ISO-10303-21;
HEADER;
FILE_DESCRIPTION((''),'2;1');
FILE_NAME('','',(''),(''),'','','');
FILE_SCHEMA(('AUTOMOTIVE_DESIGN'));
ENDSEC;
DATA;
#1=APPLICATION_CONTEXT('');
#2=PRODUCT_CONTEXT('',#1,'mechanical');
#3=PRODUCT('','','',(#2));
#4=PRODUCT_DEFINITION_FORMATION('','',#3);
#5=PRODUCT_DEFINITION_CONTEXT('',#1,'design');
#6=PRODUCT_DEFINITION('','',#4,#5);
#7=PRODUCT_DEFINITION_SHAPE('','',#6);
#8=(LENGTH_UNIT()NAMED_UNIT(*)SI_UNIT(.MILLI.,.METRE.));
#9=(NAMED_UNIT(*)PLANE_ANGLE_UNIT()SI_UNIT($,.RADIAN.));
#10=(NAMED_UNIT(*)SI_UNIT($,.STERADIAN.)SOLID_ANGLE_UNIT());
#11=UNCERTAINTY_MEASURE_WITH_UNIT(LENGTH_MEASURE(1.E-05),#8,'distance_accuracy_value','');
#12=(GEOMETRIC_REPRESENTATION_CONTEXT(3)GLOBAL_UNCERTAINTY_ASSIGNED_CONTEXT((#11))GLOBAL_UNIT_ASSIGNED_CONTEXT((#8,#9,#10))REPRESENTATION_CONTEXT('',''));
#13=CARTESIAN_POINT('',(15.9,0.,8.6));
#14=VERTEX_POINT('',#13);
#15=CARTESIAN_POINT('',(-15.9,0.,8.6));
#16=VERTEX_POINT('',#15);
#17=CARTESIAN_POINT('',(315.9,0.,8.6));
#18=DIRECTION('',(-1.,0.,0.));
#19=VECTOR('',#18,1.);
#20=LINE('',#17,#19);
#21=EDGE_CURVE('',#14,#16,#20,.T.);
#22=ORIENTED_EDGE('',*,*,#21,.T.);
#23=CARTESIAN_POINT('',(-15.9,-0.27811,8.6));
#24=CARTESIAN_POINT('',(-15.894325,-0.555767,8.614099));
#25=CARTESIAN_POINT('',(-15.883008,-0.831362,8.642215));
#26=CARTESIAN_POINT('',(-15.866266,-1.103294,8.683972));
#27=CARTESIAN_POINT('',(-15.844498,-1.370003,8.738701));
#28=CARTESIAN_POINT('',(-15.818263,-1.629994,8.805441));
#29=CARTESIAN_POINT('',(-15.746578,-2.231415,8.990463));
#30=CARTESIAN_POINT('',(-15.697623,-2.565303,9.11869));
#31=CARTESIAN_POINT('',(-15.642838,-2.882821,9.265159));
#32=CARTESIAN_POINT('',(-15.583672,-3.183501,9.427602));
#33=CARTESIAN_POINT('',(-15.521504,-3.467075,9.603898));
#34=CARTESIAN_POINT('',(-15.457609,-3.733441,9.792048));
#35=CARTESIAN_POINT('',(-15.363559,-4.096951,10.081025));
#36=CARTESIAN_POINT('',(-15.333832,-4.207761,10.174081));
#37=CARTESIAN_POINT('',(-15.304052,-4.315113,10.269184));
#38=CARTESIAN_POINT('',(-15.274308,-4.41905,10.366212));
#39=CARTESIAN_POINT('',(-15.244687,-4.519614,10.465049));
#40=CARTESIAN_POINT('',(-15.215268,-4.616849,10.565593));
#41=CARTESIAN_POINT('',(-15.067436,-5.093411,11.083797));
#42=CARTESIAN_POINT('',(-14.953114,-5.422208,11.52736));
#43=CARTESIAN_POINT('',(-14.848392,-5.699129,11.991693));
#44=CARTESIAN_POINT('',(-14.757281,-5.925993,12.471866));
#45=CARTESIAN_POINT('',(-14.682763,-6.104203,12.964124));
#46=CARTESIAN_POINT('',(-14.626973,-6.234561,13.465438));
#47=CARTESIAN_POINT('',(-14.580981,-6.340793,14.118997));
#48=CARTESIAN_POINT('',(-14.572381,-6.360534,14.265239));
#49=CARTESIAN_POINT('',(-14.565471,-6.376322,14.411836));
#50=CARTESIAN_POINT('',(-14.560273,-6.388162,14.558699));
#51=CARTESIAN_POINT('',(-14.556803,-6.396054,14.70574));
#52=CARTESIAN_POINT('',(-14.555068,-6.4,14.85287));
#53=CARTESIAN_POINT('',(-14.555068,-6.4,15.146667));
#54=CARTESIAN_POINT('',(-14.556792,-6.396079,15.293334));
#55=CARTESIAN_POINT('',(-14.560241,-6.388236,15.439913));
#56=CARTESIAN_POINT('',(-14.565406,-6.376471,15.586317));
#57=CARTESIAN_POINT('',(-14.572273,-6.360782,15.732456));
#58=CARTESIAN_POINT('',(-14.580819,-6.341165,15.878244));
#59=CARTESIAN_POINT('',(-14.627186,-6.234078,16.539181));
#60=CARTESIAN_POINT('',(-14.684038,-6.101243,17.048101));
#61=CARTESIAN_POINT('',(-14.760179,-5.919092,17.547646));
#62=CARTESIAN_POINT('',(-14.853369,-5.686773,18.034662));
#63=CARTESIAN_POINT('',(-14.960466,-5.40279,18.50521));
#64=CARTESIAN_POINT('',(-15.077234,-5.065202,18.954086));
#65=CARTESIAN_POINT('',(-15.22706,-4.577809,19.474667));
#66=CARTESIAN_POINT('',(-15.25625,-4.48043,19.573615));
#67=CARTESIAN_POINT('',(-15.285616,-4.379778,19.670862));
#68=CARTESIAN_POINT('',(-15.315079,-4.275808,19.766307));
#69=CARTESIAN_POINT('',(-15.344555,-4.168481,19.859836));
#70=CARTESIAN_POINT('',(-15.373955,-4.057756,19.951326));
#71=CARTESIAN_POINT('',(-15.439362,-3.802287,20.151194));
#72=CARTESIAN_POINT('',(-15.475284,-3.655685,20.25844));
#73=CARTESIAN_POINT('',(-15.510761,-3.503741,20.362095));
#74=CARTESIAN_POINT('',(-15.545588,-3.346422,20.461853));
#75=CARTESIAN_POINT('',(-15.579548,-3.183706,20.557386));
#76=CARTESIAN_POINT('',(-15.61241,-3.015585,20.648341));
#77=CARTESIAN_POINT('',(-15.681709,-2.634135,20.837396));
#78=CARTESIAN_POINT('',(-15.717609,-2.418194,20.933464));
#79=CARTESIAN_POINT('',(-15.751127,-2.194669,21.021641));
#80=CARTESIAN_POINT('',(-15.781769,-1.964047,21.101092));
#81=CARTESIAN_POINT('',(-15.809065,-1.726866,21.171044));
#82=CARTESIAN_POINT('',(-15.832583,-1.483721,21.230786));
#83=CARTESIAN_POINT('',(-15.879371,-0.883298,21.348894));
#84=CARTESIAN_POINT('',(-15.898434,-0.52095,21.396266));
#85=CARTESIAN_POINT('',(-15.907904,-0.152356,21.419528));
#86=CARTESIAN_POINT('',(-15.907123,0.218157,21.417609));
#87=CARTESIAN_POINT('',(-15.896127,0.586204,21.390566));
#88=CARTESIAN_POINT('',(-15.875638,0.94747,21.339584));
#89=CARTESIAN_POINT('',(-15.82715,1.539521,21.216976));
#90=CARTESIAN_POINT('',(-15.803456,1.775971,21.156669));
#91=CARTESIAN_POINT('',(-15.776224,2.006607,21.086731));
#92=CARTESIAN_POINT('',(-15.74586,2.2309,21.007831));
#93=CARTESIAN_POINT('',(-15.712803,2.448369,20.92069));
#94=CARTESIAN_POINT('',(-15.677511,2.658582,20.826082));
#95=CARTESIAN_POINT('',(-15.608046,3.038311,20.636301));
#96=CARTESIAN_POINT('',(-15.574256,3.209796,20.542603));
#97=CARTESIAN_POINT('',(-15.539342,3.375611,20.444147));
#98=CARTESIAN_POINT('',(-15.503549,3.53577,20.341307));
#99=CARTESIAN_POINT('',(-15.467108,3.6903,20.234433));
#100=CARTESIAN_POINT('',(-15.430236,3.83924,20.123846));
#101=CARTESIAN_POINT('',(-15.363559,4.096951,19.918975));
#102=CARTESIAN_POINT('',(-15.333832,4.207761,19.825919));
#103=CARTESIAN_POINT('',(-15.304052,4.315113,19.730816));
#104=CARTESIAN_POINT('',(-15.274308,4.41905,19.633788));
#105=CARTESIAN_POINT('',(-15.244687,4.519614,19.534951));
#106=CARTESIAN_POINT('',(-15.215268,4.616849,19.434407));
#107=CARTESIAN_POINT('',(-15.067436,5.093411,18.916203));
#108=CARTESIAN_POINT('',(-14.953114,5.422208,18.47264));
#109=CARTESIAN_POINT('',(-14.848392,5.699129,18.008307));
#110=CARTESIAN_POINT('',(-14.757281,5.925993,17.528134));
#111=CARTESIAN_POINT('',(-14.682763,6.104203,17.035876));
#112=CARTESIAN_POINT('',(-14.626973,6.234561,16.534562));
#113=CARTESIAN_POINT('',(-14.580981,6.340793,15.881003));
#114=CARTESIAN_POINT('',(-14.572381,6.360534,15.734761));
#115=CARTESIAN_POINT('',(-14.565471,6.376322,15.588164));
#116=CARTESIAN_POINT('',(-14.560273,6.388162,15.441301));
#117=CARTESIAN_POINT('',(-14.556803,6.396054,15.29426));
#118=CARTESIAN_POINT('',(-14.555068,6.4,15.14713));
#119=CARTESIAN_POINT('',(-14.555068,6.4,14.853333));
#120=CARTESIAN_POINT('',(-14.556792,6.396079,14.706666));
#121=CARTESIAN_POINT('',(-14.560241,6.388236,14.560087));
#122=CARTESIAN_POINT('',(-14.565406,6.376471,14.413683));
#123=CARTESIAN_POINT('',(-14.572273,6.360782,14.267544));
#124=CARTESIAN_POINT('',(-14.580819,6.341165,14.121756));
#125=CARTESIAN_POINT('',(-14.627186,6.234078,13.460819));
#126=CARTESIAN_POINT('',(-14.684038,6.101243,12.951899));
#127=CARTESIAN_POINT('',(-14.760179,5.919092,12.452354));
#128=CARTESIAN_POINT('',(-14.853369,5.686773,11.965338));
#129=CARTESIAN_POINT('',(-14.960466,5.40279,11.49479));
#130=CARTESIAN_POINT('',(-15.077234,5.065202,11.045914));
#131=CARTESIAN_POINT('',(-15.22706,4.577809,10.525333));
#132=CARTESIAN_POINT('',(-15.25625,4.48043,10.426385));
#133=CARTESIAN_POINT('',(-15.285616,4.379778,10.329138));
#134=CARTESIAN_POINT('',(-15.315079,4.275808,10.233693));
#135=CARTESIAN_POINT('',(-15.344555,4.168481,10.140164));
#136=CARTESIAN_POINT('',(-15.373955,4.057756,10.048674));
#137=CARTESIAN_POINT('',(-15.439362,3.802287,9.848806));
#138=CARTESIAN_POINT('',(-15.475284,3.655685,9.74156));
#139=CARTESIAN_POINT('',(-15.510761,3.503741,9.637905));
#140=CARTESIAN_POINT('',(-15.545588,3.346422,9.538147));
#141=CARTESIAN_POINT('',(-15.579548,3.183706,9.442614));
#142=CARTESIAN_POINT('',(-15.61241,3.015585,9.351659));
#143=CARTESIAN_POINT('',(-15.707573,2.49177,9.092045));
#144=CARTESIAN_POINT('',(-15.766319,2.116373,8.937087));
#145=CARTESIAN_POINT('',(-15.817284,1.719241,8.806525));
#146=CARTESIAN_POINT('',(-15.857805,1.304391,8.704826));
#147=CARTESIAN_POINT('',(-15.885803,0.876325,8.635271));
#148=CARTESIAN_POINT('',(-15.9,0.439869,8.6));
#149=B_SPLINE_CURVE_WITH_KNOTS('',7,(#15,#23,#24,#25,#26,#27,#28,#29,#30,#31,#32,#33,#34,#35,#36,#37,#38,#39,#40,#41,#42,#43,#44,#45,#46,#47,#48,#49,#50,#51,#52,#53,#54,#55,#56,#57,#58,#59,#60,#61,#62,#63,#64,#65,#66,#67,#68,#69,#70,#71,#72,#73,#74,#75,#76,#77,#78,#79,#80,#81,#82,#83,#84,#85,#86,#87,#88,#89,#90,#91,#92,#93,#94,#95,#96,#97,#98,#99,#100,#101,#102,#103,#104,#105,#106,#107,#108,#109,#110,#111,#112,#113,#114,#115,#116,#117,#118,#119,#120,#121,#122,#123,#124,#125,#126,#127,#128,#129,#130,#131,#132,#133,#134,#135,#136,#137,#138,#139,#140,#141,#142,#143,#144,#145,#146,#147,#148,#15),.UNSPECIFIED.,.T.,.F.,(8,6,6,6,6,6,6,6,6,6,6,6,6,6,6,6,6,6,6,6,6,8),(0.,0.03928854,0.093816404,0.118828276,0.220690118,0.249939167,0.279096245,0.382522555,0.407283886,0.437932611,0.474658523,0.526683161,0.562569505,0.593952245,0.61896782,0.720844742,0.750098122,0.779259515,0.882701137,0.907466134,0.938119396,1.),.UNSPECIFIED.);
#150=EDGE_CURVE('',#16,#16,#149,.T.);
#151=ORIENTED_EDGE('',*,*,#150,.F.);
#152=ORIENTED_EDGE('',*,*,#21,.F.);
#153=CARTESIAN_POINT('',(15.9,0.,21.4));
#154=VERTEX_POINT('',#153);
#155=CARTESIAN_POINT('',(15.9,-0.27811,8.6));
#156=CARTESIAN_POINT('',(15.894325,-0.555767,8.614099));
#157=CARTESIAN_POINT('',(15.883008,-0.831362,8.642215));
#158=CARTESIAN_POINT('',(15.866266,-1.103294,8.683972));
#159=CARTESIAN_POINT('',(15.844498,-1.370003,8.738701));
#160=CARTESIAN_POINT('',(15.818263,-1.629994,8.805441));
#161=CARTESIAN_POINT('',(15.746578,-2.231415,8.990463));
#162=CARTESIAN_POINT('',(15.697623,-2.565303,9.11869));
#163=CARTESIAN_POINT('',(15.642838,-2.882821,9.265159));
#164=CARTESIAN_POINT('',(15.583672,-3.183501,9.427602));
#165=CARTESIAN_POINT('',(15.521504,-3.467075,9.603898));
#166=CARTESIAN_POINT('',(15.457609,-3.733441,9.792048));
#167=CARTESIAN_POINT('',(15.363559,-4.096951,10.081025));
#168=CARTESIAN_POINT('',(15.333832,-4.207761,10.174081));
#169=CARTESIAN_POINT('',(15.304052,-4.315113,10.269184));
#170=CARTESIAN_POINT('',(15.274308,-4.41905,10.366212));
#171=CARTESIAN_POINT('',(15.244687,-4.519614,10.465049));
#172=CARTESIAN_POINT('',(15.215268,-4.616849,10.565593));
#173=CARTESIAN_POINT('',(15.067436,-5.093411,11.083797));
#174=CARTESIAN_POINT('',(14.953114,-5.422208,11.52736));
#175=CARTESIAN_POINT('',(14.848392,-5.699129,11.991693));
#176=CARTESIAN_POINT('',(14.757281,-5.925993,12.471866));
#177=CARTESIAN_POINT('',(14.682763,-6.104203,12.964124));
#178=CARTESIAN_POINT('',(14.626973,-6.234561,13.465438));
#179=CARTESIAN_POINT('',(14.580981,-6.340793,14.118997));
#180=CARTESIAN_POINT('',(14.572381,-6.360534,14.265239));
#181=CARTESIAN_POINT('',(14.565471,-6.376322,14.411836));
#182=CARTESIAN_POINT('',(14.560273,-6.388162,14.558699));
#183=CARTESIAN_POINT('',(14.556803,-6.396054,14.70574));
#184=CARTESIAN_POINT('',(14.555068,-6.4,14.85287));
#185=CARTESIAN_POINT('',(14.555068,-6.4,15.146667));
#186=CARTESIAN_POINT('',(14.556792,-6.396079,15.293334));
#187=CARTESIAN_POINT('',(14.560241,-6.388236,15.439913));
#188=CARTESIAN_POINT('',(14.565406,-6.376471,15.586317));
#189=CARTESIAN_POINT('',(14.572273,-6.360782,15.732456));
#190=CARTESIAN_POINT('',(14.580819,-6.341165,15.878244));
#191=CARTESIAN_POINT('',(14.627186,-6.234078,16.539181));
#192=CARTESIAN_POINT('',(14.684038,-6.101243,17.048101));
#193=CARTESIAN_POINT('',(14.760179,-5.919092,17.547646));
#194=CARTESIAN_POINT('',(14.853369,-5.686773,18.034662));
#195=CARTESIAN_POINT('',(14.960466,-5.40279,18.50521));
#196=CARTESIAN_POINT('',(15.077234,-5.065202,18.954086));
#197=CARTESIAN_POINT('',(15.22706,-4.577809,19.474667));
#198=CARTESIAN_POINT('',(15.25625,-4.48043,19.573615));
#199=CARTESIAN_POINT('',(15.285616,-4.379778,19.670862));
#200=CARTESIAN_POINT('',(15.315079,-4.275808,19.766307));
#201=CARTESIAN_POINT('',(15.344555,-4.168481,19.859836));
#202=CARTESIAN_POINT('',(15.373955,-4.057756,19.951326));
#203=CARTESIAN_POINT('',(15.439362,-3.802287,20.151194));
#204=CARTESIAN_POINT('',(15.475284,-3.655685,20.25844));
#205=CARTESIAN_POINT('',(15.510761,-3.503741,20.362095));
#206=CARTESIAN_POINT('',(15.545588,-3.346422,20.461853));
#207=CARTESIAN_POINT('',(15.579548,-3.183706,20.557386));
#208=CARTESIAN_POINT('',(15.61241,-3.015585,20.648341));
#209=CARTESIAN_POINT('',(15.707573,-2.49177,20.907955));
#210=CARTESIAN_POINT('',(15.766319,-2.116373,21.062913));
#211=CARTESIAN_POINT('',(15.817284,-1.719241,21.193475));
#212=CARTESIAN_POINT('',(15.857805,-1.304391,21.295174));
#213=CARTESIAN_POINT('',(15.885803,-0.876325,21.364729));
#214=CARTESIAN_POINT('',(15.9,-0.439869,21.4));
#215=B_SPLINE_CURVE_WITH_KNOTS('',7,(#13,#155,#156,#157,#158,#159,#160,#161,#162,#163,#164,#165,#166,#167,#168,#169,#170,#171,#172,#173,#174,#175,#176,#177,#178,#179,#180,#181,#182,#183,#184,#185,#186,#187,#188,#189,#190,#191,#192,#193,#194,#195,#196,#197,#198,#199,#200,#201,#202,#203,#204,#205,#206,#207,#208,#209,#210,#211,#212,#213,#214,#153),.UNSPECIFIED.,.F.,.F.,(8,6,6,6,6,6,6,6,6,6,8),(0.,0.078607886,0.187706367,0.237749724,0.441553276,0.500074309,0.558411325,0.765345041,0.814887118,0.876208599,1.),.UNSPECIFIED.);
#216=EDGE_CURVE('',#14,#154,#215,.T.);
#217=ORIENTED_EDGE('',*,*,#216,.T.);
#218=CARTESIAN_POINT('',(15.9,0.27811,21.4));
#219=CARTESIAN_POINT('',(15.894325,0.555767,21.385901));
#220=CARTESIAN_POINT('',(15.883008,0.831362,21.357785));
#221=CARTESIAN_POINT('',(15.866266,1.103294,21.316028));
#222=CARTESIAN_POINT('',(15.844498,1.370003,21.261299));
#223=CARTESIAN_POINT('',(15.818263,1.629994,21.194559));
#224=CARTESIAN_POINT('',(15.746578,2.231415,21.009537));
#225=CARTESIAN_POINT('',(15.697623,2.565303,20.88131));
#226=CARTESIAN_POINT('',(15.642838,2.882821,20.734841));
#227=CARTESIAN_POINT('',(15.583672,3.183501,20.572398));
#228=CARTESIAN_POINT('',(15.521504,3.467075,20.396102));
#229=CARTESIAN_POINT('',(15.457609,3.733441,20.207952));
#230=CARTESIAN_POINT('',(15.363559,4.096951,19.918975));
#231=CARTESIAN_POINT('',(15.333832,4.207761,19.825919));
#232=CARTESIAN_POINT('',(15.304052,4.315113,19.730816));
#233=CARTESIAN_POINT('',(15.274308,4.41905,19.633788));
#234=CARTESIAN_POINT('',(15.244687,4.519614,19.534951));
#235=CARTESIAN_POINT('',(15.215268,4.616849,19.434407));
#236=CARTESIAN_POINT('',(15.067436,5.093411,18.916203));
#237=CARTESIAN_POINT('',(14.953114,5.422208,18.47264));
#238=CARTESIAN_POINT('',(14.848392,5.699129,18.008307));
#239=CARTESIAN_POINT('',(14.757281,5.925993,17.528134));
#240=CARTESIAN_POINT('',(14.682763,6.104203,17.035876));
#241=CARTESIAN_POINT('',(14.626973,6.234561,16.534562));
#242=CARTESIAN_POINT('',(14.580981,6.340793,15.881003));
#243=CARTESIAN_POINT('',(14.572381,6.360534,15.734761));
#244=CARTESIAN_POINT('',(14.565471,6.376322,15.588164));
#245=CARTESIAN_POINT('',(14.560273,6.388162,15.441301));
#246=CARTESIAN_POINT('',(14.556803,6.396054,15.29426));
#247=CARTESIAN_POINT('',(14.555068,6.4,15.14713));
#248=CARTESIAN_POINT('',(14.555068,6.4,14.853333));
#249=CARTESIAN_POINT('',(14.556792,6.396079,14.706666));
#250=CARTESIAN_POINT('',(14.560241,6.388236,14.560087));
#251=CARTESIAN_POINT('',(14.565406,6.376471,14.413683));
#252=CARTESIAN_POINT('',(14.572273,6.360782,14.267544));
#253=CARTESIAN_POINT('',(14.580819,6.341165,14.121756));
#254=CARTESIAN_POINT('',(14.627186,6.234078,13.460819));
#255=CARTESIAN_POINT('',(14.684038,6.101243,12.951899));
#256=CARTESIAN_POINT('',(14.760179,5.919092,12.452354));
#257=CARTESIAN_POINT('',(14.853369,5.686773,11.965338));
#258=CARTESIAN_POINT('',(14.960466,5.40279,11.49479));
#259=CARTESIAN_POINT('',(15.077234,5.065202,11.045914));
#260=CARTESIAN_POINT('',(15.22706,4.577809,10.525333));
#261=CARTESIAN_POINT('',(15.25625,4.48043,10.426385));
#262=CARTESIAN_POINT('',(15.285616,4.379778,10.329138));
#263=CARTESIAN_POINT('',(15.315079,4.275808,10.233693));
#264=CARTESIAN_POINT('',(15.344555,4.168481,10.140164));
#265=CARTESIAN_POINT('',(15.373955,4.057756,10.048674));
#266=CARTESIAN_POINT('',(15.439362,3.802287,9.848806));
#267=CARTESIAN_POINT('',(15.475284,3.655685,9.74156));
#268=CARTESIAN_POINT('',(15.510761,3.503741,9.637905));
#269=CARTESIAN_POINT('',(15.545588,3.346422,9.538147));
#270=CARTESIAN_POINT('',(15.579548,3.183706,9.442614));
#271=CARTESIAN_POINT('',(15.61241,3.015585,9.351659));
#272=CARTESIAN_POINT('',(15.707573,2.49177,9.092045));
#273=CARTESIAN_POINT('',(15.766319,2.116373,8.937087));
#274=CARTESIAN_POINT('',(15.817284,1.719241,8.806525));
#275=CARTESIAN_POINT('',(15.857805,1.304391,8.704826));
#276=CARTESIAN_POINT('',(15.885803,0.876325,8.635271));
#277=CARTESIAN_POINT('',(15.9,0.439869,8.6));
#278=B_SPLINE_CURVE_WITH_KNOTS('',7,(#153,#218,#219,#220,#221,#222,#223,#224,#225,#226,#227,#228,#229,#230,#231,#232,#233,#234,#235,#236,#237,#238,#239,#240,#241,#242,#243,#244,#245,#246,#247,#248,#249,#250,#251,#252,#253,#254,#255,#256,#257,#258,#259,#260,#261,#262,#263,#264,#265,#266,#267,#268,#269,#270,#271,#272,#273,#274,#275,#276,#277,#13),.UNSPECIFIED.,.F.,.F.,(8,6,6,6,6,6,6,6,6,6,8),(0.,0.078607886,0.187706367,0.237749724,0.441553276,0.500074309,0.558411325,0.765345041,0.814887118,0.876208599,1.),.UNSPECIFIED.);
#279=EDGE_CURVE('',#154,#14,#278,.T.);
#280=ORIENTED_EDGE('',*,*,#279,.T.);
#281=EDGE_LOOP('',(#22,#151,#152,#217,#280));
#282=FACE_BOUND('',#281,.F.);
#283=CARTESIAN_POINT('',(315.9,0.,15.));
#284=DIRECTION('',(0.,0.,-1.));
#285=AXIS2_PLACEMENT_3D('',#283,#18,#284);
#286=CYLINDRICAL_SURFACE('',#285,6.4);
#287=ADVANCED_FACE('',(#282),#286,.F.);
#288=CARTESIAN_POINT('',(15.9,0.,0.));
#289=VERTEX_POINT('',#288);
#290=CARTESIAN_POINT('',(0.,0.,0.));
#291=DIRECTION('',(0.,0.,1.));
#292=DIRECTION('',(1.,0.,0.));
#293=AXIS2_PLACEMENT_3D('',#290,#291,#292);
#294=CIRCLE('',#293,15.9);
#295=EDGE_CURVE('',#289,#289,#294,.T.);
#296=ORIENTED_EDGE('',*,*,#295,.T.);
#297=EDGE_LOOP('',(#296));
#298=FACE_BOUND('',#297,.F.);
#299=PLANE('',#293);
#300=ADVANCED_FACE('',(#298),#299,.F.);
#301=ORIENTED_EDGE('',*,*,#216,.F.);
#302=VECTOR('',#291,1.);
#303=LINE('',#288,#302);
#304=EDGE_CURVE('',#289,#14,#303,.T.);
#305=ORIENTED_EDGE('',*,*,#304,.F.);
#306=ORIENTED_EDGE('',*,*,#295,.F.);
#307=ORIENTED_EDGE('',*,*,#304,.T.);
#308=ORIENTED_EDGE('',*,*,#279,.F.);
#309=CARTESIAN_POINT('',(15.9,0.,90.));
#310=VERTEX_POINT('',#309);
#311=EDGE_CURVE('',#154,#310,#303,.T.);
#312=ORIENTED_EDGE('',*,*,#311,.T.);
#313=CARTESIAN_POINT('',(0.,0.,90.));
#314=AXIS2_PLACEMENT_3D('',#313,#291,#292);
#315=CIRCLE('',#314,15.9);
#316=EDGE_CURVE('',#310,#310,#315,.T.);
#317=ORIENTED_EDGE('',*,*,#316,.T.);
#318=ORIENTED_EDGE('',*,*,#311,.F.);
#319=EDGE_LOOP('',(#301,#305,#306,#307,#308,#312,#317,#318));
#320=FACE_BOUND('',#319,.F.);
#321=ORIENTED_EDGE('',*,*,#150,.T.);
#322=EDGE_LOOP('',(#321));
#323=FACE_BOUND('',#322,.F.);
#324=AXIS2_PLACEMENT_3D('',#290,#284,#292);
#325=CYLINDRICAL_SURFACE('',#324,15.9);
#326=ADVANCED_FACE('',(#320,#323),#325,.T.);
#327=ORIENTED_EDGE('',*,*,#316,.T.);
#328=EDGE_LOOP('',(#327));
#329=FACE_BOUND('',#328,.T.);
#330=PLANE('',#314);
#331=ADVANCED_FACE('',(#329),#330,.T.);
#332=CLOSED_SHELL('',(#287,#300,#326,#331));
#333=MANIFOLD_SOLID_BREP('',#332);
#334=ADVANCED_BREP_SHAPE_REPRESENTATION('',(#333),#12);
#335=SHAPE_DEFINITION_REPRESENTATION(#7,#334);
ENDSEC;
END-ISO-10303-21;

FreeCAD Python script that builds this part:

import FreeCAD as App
import Part
import Sketcher

V = App.Vector

doc = App.newDocument("Part")
params = doc.addObject("Spreadsheet::Sheet", "Params")
for row, (alias, value) in enumerate([
    ("sketch1_diameter", "31.8 mm"),
    ("pad1_length", "90 mm"),
    ("sketch2_diameter", "12.8 mm"),
    ("hole_diameter", "12.8 mm"),
    ("hole_depth", "300 mm"),
], start=1):
    params.set(f"A{row}", alias)
    params.set(f"B{row}", "=" + value)
    params.setAlias(f"B{row}", alias)

body = doc.addObject("PartDesign::Body", "Body")

sketch1 = doc.addObject("Sketcher::SketchObject", "Sketch")
body.addObject(sketch1)
sketch1.AttachmentSupport = (doc.XY_Plane, [""])
sketch1.MapMode = "FlatFace"
sketch1.addGeometry(Part.Circle(V(0, 0, 0), V(0, 0, 1), 16), False)
sketch1.addConstraint(Sketcher.Constraint("Coincident", 0, 3, -1, 1))
sketch1.addConstraint(Sketcher.Constraint("Diameter", 0, 31.8))
sketch1.setExpression("Constraints[1]", "Params.sketch1_diameter")
pad1 = doc.addObject("PartDesign::Pad", "Pad")
body.addObject(pad1)
pad1.Profile = sketch1
pad1.setExpression("Length", "Params.pad1_length")

sketch2 = doc.addObject("Sketcher::SketchObject", "Sketch001")
body.addObject(sketch2)
sketch2.AttachmentSupport = (doc.YZ_Plane, [""])
sketch2.MapMode = "FlatFace"
sketch2.AttachmentOffset = App.Placement(V(0, 0, 15.9), App.Rotation())
sketch2.addGeometry(Part.Circle(V(0, 15, 0), V(0, 0, 1), 6), False)
sketch2.addConstraint(Sketcher.Constraint("PointOnObject", 0, 3, -2))
sketch2.addConstraint(Sketcher.Constraint("Diameter", 0, 12.8))
sketch2.addConstraint(Sketcher.Constraint("DistanceY", -1, 1, 0, 3, 15.0))
sketch2.setExpression("Constraints[1]", "Params.sketch2_diameter")
doc.recompute()
hole = doc.addObject("PartDesign::Hole", "Hole")
body.addObject(hole)
hole.Profile = sketch2
hole.ThreadType = "None"
hole.setExpression("Diameter", "Params.hole_diameter")
hole.DepthType = "Dimension"
hole.setExpression("Depth", "Params.hole_depth")
hole.DrillPoint = "Angled"
hole.DrillPointAngle = 118

doc.recompute()
